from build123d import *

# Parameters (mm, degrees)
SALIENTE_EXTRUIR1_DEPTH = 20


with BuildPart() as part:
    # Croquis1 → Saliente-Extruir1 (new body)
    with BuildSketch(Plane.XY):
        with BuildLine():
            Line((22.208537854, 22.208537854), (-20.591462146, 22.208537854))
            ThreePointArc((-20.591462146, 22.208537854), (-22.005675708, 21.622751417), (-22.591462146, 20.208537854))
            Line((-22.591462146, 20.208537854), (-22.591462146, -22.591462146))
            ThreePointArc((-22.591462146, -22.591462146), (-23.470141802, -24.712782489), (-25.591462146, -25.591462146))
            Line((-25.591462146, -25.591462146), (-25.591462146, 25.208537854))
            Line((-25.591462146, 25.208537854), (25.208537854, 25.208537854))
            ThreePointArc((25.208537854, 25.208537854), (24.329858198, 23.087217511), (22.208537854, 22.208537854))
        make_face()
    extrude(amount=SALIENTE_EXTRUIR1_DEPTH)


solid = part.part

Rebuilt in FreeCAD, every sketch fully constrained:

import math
import FreeCAD as App
import Part
import Sketcher

V = App.Vector
Q = App.Units.Quantity

doc = App.newDocument("Part")
body = doc.addObject("PartDesign::Body", "Body")

# Sketch on XY plane
sketch1 = body.newObject("Sketcher::SketchObject", "Sketch")
sketch1.AttachmentSupport = (doc.getObject("XY_Plane"), [""])
sketch1.MapMode = "FlatFace"
sketch1.addGeometry(Part.LineSegment(V(-20.591462, 22.208538, 0), V(22.208538, 22.208538, 0)), False)
sketch1.addGeometry(Part.ArcOfCircle(Part.Circle(V(22.208538, 25.208538, 0), V(0, 0, 1), 3), math.radians(-90), math.radians(0)), False)
sketch1.addGeometry(Part.LineSegment(V(25.208538, 25.208538, 0), V(-25.591462, 25.208538, 0)), False)
sketch1.addGeometry(Part.LineSegment(V(-25.591462, 25.208538, 0), V(-25.591462, -25.591462, 0)), False)
sketch1.addGeometry(Part.ArcOfCircle(Part.Circle(V(-25.591462, -22.591462, 0), V(0, 0, 1), 3), math.radians(-90), math.radians(0)), False)
sketch1.addGeometry(Part.LineSegment(V(-22.591462, -22.591462, 0), V(-22.591462, 20.208538, 0)), False)
sketch1.addGeometry(Part.ArcOfCircle(Part.Circle(V(-20.591462, 20.208538, 0), V(0, 0, 1), 2), math.radians(90), math.radians(180)), False)
sketch1.addConstraint(Sketcher.Constraint("Tangent", 0, 2, 1, 1))
sketch1.addConstraint(Sketcher.Constraint("Coincident", 1, 2, 2, 1))
sketch1.addConstraint(Sketcher.Constraint("Coincident", 2, 2, 3, 1))
sketch1.addConstraint(Sketcher.Constraint("Coincident", 3, 2, 4, 1))
sketch1.addConstraint(Sketcher.Constraint("Tangent", 4, 2, 5, 1))
sketch1.addConstraint(Sketcher.Constraint("Tangent", 5, 2, 6, 2))
sketch1.addConstraint(Sketcher.Constraint("Tangent", 6, 1, 0, 1))
sketch1.addConstraint(Sketcher.Constraint("Horizontal", 0))
sketch1.addConstraint(Sketcher.Constraint("Horizontal", 2))
sketch1.addConstraint(Sketcher.Constraint("Vertical", 3))
sketch1.addConstraint(Sketcher.Constraint("Vertical", 5))
sketch1.addConstraint(Sketcher.Constraint("Equal", 1, 4))
sketch1.addConstraint(Sketcher.Constraint("Vertical", 4, 3, 2, 2))
sketch1.addConstraint(Sketcher.Constraint("Equal", 2, 3))
sketch1.addConstraint(Sketcher.Constraint("Equal", 0, 5))
sketch1.addConstraint(Sketcher.Constraint("Radius", 1, Q("3 mm")))
sketch1.addConstraint(Sketcher.Constraint("Radius", 6, Q("2 mm")))
sketch1.addConstraint(Sketcher.Constraint("DistanceX", 0, 1, 0, 2, Q("42.8 mm")))
sketch1.addConstraint(Sketcher.Constraint("DistanceX", -1, 1, 1, 3, Q("22.208538 mm")))
sketch1.addConstraint(Sketcher.Constraint("DistanceY", -1, 1, 1, 3, Q("25.208538 mm")))
pad1 = body.newObject("PartDesign::Pad", "Pad")
pad1.Profile = sketch1
pad1.Length = 20

doc.recompute()
